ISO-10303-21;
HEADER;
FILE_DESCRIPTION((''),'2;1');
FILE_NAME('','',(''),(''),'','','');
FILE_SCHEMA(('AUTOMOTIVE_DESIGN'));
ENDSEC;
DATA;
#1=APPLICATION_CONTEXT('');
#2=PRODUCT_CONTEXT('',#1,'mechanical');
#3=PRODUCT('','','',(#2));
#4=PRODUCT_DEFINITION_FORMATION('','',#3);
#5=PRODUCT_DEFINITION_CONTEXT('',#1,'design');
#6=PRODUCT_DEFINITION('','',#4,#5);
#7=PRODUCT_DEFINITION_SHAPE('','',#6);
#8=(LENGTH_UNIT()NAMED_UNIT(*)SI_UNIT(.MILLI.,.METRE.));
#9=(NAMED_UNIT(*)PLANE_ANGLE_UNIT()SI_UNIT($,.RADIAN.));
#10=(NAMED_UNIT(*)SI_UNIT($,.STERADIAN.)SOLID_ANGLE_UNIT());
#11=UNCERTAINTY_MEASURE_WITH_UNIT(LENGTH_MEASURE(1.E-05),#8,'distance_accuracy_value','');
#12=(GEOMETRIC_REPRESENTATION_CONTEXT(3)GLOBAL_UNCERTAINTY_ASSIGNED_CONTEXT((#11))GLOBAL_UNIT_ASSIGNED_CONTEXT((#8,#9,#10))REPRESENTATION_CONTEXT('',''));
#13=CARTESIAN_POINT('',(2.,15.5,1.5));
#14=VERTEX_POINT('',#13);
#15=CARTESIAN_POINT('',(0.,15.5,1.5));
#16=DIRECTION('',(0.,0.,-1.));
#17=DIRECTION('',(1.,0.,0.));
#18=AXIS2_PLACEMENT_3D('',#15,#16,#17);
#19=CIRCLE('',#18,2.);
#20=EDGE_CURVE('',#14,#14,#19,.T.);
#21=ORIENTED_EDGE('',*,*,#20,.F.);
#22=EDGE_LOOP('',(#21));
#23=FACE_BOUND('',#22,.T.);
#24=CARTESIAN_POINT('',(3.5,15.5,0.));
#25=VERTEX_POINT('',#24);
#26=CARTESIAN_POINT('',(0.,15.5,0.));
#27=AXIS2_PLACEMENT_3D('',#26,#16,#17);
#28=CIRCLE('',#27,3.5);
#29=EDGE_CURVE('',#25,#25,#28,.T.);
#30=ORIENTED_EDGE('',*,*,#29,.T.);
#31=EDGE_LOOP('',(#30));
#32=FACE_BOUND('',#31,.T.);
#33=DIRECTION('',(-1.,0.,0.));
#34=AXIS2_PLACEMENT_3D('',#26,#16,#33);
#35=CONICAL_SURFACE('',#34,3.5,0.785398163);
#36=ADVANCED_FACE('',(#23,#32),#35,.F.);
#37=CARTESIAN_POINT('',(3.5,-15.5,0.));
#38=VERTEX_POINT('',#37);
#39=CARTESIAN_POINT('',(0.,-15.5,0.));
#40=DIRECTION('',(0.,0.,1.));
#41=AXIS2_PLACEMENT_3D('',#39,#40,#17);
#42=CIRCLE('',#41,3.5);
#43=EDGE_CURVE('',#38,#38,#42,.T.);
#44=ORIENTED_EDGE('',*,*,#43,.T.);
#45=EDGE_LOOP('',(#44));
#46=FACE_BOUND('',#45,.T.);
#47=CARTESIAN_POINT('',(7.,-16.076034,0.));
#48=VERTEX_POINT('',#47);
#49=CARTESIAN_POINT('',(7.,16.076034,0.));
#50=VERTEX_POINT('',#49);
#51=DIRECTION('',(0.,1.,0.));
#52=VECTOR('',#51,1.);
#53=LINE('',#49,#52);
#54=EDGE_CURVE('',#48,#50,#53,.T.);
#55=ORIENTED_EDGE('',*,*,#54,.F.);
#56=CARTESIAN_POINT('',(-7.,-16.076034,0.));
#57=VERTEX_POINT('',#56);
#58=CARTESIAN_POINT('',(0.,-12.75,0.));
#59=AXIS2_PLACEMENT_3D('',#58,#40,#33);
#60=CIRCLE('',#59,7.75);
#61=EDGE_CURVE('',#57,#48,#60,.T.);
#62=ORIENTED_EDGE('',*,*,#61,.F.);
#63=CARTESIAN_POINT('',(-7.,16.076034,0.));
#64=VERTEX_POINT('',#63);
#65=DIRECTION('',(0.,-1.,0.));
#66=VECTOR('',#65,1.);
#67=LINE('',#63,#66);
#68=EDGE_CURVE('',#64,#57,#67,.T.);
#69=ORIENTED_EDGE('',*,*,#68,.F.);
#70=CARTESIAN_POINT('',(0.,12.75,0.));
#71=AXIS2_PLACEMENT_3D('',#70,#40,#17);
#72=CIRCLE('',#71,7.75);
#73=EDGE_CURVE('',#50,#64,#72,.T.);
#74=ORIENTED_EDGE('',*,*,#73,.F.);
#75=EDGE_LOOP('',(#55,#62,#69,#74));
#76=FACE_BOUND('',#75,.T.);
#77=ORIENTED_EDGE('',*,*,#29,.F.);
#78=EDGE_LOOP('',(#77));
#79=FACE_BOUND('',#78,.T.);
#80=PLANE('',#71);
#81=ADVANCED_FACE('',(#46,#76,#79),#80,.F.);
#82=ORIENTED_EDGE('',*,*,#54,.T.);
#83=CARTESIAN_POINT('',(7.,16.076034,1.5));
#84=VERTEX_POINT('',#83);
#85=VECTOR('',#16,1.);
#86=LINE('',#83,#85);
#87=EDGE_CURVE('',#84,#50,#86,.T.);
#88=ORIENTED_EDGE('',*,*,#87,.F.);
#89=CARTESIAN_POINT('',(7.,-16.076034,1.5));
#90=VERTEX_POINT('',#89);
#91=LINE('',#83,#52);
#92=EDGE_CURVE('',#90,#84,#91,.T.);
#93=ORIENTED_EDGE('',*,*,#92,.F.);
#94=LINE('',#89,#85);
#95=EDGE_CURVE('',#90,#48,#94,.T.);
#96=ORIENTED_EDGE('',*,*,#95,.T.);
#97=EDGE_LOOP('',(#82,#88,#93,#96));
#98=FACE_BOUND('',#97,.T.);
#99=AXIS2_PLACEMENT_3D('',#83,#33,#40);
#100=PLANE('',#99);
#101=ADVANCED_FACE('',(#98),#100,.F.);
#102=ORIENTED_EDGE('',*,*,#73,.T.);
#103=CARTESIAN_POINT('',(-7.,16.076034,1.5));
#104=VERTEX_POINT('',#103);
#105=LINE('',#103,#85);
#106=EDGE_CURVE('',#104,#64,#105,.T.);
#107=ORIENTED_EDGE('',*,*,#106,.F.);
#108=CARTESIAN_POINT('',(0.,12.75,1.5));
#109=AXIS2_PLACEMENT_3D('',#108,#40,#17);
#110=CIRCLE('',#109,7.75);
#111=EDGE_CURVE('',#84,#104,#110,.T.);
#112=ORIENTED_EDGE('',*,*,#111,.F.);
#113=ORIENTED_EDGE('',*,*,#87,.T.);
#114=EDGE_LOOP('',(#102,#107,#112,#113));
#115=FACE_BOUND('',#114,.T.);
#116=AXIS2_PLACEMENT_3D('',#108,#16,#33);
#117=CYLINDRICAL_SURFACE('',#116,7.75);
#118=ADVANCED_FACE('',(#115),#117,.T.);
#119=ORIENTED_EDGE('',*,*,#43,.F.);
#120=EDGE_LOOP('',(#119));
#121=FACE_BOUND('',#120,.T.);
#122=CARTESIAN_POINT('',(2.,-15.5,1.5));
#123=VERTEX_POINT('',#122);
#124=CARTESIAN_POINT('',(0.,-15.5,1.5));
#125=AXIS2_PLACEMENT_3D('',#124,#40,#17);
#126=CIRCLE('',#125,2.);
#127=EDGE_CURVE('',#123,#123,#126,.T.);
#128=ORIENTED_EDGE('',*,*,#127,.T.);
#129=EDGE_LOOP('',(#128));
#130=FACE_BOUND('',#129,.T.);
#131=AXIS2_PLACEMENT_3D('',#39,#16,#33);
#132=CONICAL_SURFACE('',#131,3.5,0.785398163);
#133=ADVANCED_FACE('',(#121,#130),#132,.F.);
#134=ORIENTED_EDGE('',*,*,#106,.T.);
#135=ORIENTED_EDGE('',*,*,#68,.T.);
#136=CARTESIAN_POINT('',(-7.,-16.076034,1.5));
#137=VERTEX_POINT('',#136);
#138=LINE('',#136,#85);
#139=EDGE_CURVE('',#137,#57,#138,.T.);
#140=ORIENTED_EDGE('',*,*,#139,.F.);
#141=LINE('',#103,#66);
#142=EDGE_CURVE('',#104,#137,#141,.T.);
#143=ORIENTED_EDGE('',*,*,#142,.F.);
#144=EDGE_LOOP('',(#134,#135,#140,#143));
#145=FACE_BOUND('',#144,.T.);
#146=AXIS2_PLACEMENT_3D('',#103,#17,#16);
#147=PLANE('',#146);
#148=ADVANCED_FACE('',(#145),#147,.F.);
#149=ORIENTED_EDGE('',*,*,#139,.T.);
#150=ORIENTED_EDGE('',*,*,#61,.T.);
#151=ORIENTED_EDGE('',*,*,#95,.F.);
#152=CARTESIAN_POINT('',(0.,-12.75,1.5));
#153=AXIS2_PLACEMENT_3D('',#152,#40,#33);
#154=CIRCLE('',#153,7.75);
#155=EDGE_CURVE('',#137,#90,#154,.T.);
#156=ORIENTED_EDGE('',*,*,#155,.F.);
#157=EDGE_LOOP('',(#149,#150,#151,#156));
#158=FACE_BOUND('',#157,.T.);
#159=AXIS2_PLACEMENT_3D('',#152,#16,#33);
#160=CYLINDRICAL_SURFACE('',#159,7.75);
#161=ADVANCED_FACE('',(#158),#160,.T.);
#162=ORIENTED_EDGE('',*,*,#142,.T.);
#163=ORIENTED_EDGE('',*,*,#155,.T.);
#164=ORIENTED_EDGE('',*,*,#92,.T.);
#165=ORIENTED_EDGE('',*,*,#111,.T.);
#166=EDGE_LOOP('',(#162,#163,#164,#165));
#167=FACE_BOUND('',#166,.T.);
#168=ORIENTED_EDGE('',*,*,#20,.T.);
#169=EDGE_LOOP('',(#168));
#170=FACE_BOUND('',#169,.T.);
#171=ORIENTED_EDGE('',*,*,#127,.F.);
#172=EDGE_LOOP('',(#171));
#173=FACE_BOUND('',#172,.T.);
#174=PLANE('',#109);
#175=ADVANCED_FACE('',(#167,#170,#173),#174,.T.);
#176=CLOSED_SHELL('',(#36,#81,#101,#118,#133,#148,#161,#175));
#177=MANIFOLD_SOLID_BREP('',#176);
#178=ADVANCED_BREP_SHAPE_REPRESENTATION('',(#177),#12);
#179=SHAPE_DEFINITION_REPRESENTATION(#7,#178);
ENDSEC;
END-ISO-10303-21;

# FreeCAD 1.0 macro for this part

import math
import FreeCAD as App
import Part
import Sketcher

V = App.Vector
Q = App.Units.Quantity


def add_polygon(sketch, points):
    """Adds a closed chain of lines whose ends are joined by coincident constraints."""
    first, n = sketch.GeometryCount, len(points)
    for a, b in zip(points, points[1:] + points[:1]):
        sketch.addGeometry(Part.LineSegment(App.Vector(*a, 0), App.Vector(*b, 0)), False)
    for i in range(n):
        sketch.addConstraint(Sketcher.Constraint("Coincident", first + i, 2, first + (i + 1) % n, 1))

doc = App.newDocument("Part")
body = doc.addObject("PartDesign::Body", "Body")

sketch1 = body.newObject("Sketcher::SketchObject", "Sketch")
sketch1.AttachmentSupport = (doc.getObject("XY_Plane"), [""])
sketch1.MapMode = "FlatFace"
sketch1.addGeometry(Part.LineSegment(V(-7, 16, 0), V(-7, -16, 0)), False)
sketch1.addGeometry(Part.ArcOfCircle(Part.Circle(V(0, -13, 0), V(0, 0, 1), 8), math.radians(-155), math.radians(-25)), False)
sketch1.addGeometry(Part.LineSegment(V(7, -16, 0), V(7, 16, 0)), False)
sketch1.addGeometry(Part.ArcOfCircle(Part.Circle(V(0, 13, 0), V(0, 0, 1), 8), math.radians(25), math.radians(155)), False)
sketch1.addConstraint(Sketcher.Constraint("Coincident", 0, 2, 1, 1))
sketch1.addConstraint(Sketcher.Constraint("Coincident", 1, 2, 2, 1))
sketch1.addConstraint(Sketcher.Constraint("Coincident", 2, 2, 3, 1))
sketch1.addConstraint(Sketcher.Constraint("Coincident", 3, 2, 0, 1))
sketch1.addConstraint(Sketcher.Constraint("Vertical", 0))
sketch1.addConstraint(Sketcher.Constraint("Vertical", 2))
sketch1.addConstraint(Sketcher.Constraint("Equal", 1, 3))
sketch1.addConstraint(Sketcher.Constraint("Symmetric", 1, 3, 3, 3, -1, 1))
sketch1.addConstraint(Sketcher.Constraint("Symmetric", 0, 2, 1, 2, -2))
sketch1.addConstraint(Sketcher.Constraint("Radius", 1, 7.75))
sketch1.addConstraint(Sketcher.Constraint("DistanceX", 0, 2, -1, 1, 7.0))
sketch1.addConstraint(Sketcher.Constraint("DistanceY", 1, 3, 3, 3, 25.5))
pad1 = body.newObject("PartDesign::Pad", "Pad")
pad1.Profile = sketch1
pad1.Length = 1.5

sketch2 = body.newObject("Sketcher::SketchObject", "Sketch001")
sketch2.AttachmentSupport = (doc.getObject("YZ_Plane"), [""])
sketch2.MapMode = "FlatFace"
add_polygon(sketch2, [(-15.5, 0), (-12, 0), (-13.5, 1.5), (-15.5, 1.5)])
sketch2.addGeometry(Part.LineSegment(V(-15.5, 1.5, 0), V(-15.5, 0, 0)), True)
sketch2.addConstraint(Sketcher.Constraint("Horizontal", 0))
sketch2.addConstraint(Sketcher.Constraint("Horizontal", 2))
sketch2.addConstraint(Sketcher.Constraint("Vertical", 3))
sketch2.addConstraint(Sketcher.Constraint("Vertical", 4))
sketch2.addConstraint(Sketcher.Constraint("Coincident", 4, 1, 2, 2))
sketch2.addConstraint(Sketcher.Constraint("PointOnObject", 0, 2, -1))
sketch2.addConstraint(Sketcher.Constraint("PointOnObject", 4, 2, -1))
sketch2.addConstraint(Sketcher.Constraint("DistanceX", 2, 2, 2, 1, 2.0))
sketch2.addConstraint(Sketcher.Constraint("Angle", 1, Q("135 deg")))
sketch2.addConstraint(Sketcher.Constraint("DistanceX", 0, 1, 0, 2, 3.5))
sketch2.addConstraint(Sketcher.Constraint("DistanceX", 0, 2, -1, 1, 12.0))
groove = body.newObject("PartDesign::Groove", "Groove")
groove.Profile = sketch2
groove.ReferenceAxis = (sketch2, ["Axis0"])
groove.Angle = 360
doc.recompute()

mirrored = body.newObject("PartDesign::Mirrored", "Mirrored")
mirrored.Originals = [groove]
mirrored.MirrorPlane = (doc.getObject("XZ_Plane"), [""])
body.Tip = mirrored

doc.recompute()
